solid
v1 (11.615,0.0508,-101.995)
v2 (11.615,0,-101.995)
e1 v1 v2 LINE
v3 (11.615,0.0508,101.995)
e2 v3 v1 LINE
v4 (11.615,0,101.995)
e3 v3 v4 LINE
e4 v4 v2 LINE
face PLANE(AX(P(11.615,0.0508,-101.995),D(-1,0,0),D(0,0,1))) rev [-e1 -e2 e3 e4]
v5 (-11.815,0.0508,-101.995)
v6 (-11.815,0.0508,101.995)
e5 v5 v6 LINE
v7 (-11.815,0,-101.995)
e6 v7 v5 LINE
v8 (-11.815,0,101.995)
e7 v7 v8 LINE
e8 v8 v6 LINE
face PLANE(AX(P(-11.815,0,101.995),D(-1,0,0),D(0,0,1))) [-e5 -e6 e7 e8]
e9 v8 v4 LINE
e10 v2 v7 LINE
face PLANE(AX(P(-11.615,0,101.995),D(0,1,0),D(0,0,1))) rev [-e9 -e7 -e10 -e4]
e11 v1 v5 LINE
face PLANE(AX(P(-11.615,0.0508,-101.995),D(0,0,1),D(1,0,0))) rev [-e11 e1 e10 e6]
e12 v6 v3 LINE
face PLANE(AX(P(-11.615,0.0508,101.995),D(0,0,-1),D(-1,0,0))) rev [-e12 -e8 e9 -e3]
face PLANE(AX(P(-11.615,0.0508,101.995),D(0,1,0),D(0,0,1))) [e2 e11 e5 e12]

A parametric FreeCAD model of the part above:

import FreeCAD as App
import Part
import Sketcher

V = App.Vector
Q = App.Units.Quantity


def add_polygon(sketch, points):
    """Adds a closed chain of lines whose ends are joined by coincident constraints."""
    first, n = sketch.GeometryCount, len(points)
    for a, b in zip(points, points[1:] + points[:1]):
        sketch.addGeometry(Part.LineSegment(App.Vector(*a, 0), App.Vector(*b, 0)), False)
    for i in range(n):
        sketch.addConstraint(Sketcher.Constraint("Coincident", first + i, 2, first + (i + 1) % n, 1))

doc = App.newDocument("Part")
params = doc.addObject("Spreadsheet::Sheet", "Params")
for row, (alias, value) in enumerate([
    ("sketch1_width", "23.23 mm"),
    ("sketch1_height", "203.99 mm"),
    ("pad1_length", "0.0508 mm"),
    ("sketch2_width", "0.2 mm"),
    ("sketch2_height", "203.99 mm"),
    ("pad2_length", "0.0508 mm"),
], start=1):
    params.set(f"A{row}", alias)
    params.set(f"B{row}", "=" + value)
    params.setAlias(f"B{row}", alias)

body = doc.addObject("PartDesign::Body", "Body")

# Sketch on XZ plane
sketch1 = body.newObject("Sketcher::SketchObject", "Sketch")
sketch1.AttachmentSupport = (doc.getObject("XZ_Plane"), [""])
sketch1.MapMode = "FlatFace"
add_polygon(sketch1, [(-12, -102), (-12, 102), (12, 102), (12, -102)])  # lines 0-3
sketch1.addConstraint(Sketcher.Constraint("Vertical", 0))
sketch1.addConstraint(Sketcher.Constraint("Horizontal", 1))
sketch1.addConstraint(Sketcher.Constraint("Vertical", 2))
sketch1.addConstraint(Sketcher.Constraint("Horizontal", 3))
sketch1.addConstraint(Sketcher.Constraint("Symmetric", 0, 2, 2, 2, -1, 1))
sketch1.addConstraint(Sketcher.Constraint("DistanceX", 1, 1, 1, 2, Q("23.23 mm")))
sketch1.addConstraint(Sketcher.Constraint("DistanceY", 0, 1, 0, 2, Q("203.99 mm")))
sketch1.setExpression("Constraints[9]", "Params.sketch1_width")
sketch1.setExpression("Constraints[10]", "Params.sketch1_height")
pad1 = body.newObject("PartDesign::Pad", "Pad")
pad1.Profile = sketch1
pad1.setExpression("Length", "Params.pad1_length")
pad1.Reversed = True

# Sketch on XZ plane
sketch2 = body.newObject("Sketcher::SketchObject", "Sketch001")
sketch2.AttachmentSupport = (doc.getObject("XZ_Plane"), [""])
sketch2.MapMode = "FlatFace"
sketch2.AttachmentOffset = App.Placement(V(0, 0, -0.0508), App.Rotation())
add_polygon(sketch2, [(-11.81, -102), (-11.81, 102), (-11.62, 102), (-11.62, -102)])  # lines 0-3
sketch2.addConstraint(Sketcher.Constraint("Vertical", 0))
sketch2.addConstraint(Sketcher.Constraint("Horizontal", 1))
sketch2.addConstraint(Sketcher.Constraint("Vertical", 2))
sketch2.addConstraint(Sketcher.Constraint("Horizontal", 3))
sketch2.addConstraint(Sketcher.Constraint("DistanceX", 1, 1, 1, 2, Q("0.2 mm")))
sketch2.addConstraint(Sketcher.Constraint("DistanceY", 0, 1, 0, 2, Q("203.99 mm")))
sketch2.addConstraint(Sketcher.Constraint("DistanceX", 0, 2, -1, 1, Q("11.815 mm")))
sketch2.addConstraint(Sketcher.Constraint("DistanceY", -1, 1, 0, 2, Q("101.995 mm")))
sketch2.setExpression("Constraints[8]", "Params.sketch2_width")
sketch2.setExpression("Constraints[9]", "Params.sketch2_height")
pad2 = body.newObject("PartDesign::Pad", "Pad001")
pad2.Profile = sketch2
pad2.setExpression("Length", "Params.pad2_length")

doc.recompute()
